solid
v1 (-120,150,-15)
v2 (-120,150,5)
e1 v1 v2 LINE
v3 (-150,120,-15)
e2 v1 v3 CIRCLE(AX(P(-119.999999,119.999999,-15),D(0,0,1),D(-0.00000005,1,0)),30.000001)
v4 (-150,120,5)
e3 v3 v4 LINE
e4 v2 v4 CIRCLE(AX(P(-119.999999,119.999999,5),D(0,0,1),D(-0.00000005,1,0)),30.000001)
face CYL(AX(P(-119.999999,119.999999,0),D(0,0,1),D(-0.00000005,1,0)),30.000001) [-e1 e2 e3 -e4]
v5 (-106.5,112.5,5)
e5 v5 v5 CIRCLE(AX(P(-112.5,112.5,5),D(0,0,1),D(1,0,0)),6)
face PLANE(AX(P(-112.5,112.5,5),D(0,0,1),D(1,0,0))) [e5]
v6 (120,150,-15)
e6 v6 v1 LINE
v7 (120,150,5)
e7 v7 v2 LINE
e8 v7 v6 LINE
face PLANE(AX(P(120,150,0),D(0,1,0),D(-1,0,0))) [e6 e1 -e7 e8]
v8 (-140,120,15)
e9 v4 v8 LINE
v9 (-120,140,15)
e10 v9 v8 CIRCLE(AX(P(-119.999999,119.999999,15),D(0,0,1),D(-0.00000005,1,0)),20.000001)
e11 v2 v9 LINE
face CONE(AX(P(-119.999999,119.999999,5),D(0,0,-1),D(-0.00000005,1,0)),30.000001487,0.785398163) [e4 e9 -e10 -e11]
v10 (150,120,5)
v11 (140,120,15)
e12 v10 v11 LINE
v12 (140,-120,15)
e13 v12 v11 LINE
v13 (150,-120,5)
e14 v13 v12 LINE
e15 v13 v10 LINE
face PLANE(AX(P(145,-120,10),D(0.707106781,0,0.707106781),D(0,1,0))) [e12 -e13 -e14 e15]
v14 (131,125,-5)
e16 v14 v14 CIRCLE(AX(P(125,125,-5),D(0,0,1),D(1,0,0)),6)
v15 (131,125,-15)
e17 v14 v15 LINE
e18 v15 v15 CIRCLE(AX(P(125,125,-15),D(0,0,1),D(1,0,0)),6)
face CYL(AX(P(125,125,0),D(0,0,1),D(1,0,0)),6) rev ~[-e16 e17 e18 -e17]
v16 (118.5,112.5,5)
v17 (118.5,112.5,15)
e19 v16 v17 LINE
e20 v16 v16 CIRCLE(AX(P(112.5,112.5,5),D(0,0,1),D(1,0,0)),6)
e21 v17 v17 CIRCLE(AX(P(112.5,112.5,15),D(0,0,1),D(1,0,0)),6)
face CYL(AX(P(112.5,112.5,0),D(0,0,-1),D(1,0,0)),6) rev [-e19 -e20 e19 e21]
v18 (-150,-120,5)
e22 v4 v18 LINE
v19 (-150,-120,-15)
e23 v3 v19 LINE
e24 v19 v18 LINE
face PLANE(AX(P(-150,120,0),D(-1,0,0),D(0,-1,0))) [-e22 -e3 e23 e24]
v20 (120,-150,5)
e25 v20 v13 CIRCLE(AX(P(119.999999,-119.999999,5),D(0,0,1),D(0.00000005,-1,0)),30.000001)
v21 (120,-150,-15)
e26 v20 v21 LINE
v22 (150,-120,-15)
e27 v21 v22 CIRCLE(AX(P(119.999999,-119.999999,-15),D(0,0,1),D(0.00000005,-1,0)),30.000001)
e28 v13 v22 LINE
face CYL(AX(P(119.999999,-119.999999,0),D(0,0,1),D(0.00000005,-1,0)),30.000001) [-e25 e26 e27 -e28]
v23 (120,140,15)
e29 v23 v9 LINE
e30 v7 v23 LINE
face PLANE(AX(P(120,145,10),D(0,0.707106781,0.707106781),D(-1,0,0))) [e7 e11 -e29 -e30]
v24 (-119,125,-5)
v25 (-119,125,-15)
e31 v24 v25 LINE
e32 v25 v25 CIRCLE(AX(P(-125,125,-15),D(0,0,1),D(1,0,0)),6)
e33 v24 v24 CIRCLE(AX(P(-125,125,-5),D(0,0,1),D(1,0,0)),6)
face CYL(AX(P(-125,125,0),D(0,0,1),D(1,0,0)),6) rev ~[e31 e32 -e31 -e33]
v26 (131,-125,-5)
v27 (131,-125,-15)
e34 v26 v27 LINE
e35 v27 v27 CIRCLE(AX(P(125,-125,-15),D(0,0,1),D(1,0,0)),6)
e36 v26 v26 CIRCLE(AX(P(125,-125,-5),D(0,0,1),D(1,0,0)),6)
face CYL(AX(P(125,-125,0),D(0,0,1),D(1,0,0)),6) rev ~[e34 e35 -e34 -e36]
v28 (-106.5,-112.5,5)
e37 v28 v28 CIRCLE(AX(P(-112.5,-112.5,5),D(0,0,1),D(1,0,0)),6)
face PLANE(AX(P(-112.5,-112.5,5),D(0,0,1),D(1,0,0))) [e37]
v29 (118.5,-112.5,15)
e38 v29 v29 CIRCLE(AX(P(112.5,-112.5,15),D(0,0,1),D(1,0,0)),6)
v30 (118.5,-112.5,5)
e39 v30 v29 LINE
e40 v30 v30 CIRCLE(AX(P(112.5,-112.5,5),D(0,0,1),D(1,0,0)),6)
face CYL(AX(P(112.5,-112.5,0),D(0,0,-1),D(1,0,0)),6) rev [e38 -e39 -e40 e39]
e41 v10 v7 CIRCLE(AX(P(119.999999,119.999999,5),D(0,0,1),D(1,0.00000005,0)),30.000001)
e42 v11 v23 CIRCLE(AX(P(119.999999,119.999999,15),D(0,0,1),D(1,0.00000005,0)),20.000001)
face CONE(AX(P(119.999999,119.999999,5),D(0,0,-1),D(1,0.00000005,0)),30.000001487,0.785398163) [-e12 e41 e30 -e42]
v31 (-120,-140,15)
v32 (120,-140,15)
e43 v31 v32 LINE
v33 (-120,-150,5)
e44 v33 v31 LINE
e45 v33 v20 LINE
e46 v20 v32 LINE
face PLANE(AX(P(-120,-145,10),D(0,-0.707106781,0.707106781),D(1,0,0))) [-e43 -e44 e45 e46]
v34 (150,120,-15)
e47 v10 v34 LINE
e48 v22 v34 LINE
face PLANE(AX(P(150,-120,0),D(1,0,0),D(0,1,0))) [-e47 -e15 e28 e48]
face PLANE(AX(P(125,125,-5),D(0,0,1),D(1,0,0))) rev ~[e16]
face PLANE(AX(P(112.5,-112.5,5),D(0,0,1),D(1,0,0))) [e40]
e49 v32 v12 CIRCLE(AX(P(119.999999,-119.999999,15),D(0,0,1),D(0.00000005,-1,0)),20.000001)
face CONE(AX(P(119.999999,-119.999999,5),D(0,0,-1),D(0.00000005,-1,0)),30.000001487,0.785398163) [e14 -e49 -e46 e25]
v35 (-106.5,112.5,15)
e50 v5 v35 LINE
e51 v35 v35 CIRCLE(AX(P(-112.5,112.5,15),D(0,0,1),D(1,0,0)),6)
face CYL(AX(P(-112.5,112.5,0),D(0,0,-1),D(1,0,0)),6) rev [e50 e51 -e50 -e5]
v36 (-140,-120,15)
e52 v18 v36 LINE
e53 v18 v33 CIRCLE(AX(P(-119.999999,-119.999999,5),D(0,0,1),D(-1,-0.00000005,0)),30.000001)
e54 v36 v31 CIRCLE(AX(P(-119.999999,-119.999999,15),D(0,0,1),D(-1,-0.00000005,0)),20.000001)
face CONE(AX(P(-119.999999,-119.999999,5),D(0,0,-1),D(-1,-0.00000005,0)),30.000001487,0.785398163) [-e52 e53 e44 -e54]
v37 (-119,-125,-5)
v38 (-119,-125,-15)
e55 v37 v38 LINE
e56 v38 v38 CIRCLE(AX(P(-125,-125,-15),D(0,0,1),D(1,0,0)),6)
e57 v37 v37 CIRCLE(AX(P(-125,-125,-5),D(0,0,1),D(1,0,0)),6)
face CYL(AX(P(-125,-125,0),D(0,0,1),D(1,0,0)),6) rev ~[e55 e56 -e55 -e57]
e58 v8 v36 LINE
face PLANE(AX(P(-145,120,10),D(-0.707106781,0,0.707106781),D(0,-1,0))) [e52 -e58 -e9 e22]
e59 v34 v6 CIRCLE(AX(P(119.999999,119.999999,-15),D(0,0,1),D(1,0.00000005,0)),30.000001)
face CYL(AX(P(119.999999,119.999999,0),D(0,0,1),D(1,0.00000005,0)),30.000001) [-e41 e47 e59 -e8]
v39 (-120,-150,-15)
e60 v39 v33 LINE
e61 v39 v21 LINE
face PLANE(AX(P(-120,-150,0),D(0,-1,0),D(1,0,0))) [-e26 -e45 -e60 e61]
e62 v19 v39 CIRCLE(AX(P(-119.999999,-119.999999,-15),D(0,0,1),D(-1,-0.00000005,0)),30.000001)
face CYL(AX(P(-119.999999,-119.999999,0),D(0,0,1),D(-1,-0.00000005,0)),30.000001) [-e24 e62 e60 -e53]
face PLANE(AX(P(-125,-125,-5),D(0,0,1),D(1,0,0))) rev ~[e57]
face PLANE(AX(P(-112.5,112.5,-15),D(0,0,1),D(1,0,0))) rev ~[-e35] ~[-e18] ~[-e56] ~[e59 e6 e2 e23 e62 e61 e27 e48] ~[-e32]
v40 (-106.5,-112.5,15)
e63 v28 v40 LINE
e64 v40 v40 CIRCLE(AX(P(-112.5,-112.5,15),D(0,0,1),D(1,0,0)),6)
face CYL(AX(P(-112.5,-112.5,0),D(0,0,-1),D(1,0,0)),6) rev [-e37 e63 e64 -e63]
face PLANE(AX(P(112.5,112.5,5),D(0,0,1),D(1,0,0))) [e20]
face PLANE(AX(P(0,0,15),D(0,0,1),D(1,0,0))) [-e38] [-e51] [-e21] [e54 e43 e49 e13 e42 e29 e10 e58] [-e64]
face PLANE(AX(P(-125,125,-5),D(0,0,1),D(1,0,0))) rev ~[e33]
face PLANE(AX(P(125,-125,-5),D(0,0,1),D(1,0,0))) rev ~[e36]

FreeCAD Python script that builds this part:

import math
import FreeCAD as App
import Part
import Sketcher
Q = App.Units.Quantity


def edges_at(feature, points):
    """Names of the edges that pass closest to the given points."""
    edges = feature.Shape.Edges
    near = lambda p: min(range(len(edges)), key=lambda i: edges[i].distToShape(Part.Vertex(*p))[0])
    return sorted({f"Edge{near(p) + 1}" for p in points})

doc = App.newDocument("Part")
body = doc.addObject("PartDesign::Body", "Body")

# Sketch on XY plane
sketch1 = body.newObject("Sketcher::SketchObject", "Sketch")
sketch1.AttachmentSupport = (doc.getObject("XY_Plane"), [""])
sketch1.MapMode = "FlatFace"
sketch1.addGeometry(Part.LineSegment(App.Vector(120, 150, 0), App.Vector(-120, 150, 0)), False)
sketch1.addGeometry(Part.ArcOfCircle(Part.Circle(App.Vector(-120, 120, 0), App.Vector(0, 0, 1), 30), math.radians(90), math.radians(180)), False)
sketch1.addGeometry(Part.LineSegment(App.Vector(-150, 120, 0), App.Vector(-150, -120, 0)), False)
sketch1.addGeometry(Part.ArcOfCircle(Part.Circle(App.Vector(-120, -120, 0), App.Vector(0, 0, 1), 30), math.radians(-180), math.radians(-90)), False)
sketch1.addGeometry(Part.LineSegment(App.Vector(-120, -150, 0), App.Vector(120, -150, 0)), False)
sketch1.addGeometry(Part.ArcOfCircle(Part.Circle(App.Vector(120, -120, 0), App.Vector(0, 0, 1), 30), math.radians(-90), math.radians(0)), False)
sketch1.addGeometry(Part.LineSegment(App.Vector(150, -120, 0), App.Vector(150, 120, 0)), False)
sketch1.addGeometry(Part.ArcOfCircle(Part.Circle(App.Vector(120, 120, 0), App.Vector(0, 0, 1), 30), math.radians(0), math.radians(90)), False)
sketch1.addGeometry(Part.Circle(App.Vector(-125, -125, 0), App.Vector(0, 0, 1), 6), False)
sketch1.addGeometry(Part.Circle(App.Vector(-112, -112, 0), App.Vector(0, 0, 1), 6), False)
sketch1.addGeometry(Part.Circle(App.Vector(125, -125, 0), App.Vector(0, 0, 1), 6), False)
sketch1.addGeometry(Part.Circle(App.Vector(112, -112, 0), App.Vector(0, 0, 1), 6), False)
sketch1.addGeometry(Part.Circle(App.Vector(-112, 112, 0), App.Vector(0, 0, 1), 6), False)
sketch1.addGeometry(Part.Circle(App.Vector(-125, 125, 0), App.Vector(0, 0, 1), 6), False)
sketch1.addGeometry(Part.Circle(App.Vector(112, 112, 0), App.Vector(0, 0, 1), 6), False)
sketch1.addGeometry(Part.Circle(App.Vector(125, 125, 0), App.Vector(0, 0, 1), 6), False)
sketch1.addConstraint(Sketcher.Constraint("Tangent", 0, 2, 1, 1))
sketch1.addConstraint(Sketcher.Constraint("Tangent", 1, 2, 2, 1))
sketch1.addConstraint(Sketcher.Constraint("Tangent", 2, 2, 3, 1))
sketch1.addConstraint(Sketcher.Constraint("Tangent", 3, 2, 4, 1))
sketch1.addConstraint(Sketcher.Constraint("Tangent", 4, 2, 5, 1))
sketch1.addConstraint(Sketcher.Constraint("Tangent", 5, 2, 6, 1))
sketch1.addConstraint(Sketcher.Constraint("Tangent", 6, 2, 7, 1))
sketch1.addConstraint(Sketcher.Constraint("Tangent", 7, 2, 0, 1))
sketch1.addConstraint(Sketcher.Constraint("Horizontal", 0))
sketch1.addConstraint(Sketcher.Constraint("Vertical", 2))
sketch1.addConstraint(Sketcher.Constraint("Horizontal", 4))
sketch1.addConstraint(Sketcher.Constraint("Vertical", 6))
sketch1.addConstraint(Sketcher.Constraint("Equal", 1, 3))
sketch1.addConstraint(Sketcher.Constraint("Equal", 3, 5))
sketch1.addConstraint(Sketcher.Constraint("Equal", 5, 7))
sketch1.addConstraint(Sketcher.Constraint("Equal", 8, 9))
sketch1.addConstraint(Sketcher.Constraint("Equal", 9, 10))
sketch1.addConstraint(Sketcher.Constraint("Equal", 10, 11))
sketch1.addConstraint(Sketcher.Constraint("Equal", 11, 12))
sketch1.addConstraint(Sketcher.Constraint("Equal", 12, 13))
sketch1.addConstraint(Sketcher.Constraint("Equal", 13, 14))
sketch1.addConstraint(Sketcher.Constraint("Equal", 14, 15))
sketch1.addConstraint(Sketcher.Constraint("Symmetric", 1, 3, 5, 3, -1, 1))
sketch1.addConstraint(Sketcher.Constraint("Symmetric", 11, 3, 12, 3, -1, 1))
sketch1.addConstraint(Sketcher.Constraint("Symmetric", 10, 3, 13, 3, -1, 1))
sketch1.addConstraint(Sketcher.Constraint("Symmetric", 9, 3, 14, 3, -1, 1))
sketch1.addConstraint(Sketcher.Constraint("Symmetric", 8, 3, 15, 3, -1, 1))
sketch1.addConstraint(Sketcher.Constraint("Symmetric", 8, 3, 10, 3, -2))
sketch1.addConstraint(Sketcher.Constraint("Symmetric", 9, 3, 11, 3, -2))
sketch1.addConstraint(Sketcher.Constraint("Equal", 4, 2))
sketch1.addConstraint(Sketcher.Constraint("Diameter", 8, Q("12 mm")))
sketch1.addConstraint(Sketcher.Constraint("Radius", 1, Q("30.000001 mm")))
sketch1.addConstraint(Sketcher.Constraint("DistanceX", 0, 2, 0, 1, Q("240 mm")))
sketch1.addConstraint(Sketcher.Constraint("DistanceX", 8, 3, -1, 1, Q("125 mm")))
sketch1.addConstraint(Sketcher.Constraint("DistanceY", 8, 3, -1, 1, Q("125 mm")))
sketch1.addConstraint(Sketcher.Constraint("DistanceX", 9, 3, 11, 3, Q("225 mm")))
sketch1.addConstraint(Sketcher.Constraint("DistanceY", 9, 3, 12, 3, Q("225 mm")))
pad1 = body.newObject("PartDesign::Pad", "Pad")
pad1.Profile = sketch1
pad1.Type = "TwoLengths"
pad1.Length = 15
pad1.Length2 = 15
doc.recompute()

chamfer = body.newObject("PartDesign::Chamfer", "Chamfer")
chamfer.Base = (pad1, edges_at(pad1, [
    (0, 150, 15),
    (-141.213, 141.213, 15),
    (-150, 0, 15),
    (0, -150, 15),
    (-141.213, -141.213, 15),
    (141.213, -141.213, 15),
    (150, 0, 15),
    (141.213, 141.213, 15),
]))
chamfer.Size = 10

# Sketch on XY plane
sketch2 = body.newObject("Sketcher::SketchObject", "Sketch001")
sketch2.AttachmentSupport = (doc.getObject("XY_Plane"), [""])
sketch2.MapMode = "FlatFace"
sketch2.addGeometry(Part.Circle(App.Vector(-112, 112, 0), App.Vector(0, 0, 1), 6), False)
sketch2.addGeometry(Part.Circle(App.Vector(112, 112, 0), App.Vector(0, 0, 1), 6), False)
sketch2.addGeometry(Part.Circle(App.Vector(112, -112, 0), App.Vector(0, 0, 1), 6), False)
sketch2.addGeometry(Part.Circle(App.Vector(-112, -112, 0), App.Vector(0, 0, 1), 6), False)
sketch2.addConstraint(Sketcher.Constraint("Equal", 0, 1))
sketch2.addConstraint(Sketcher.Constraint("Equal", 1, 2))
sketch2.addConstraint(Sketcher.Constraint("Equal", 2, 3))
sketch2.addConstraint(Sketcher.Constraint("Symmetric", 0, 3, 2, 3, -1, 1))
sketch2.addConstraint(Sketcher.Constraint("Symmetric", 1, 3, 3, 3, -1, 1))
sketch2.addConstraint(Sketcher.Constraint("Symmetric", 0, 3, 1, 3, -2))
sketch2.addConstraint(Sketcher.Constraint("Diameter", 0, Q("12 mm")))
sketch2.addConstraint(Sketcher.Constraint("DistanceX", 0, 3, 1, 3, Q("225 mm")))
sketch2.addConstraint(Sketcher.Constraint("DistanceY", 2, 3, 1, 3, Q("225 mm")))
pad2 = body.newObject("PartDesign::Pad", "Pad001")
pad2.Profile = sketch2
pad2.Type = "TwoLengths"
pad2.Length = 5
pad2.Length2 = 15

# Sketch on XY plane
sketch3 = body.newObject("Sketcher::SketchObject", "Sketch002")
sketch3.AttachmentSupport = (doc.getObject("XY_Plane"), [""])
sketch3.MapMode = "FlatFace"
sketch3.addGeometry(Part.Circle(App.Vector(125, 125, 0), App.Vector(0, 0, 1), 6), False)
sketch3.addGeometry(Part.Circle(App.Vector(-125, 125, 0), App.Vector(0, 0, 1), 6), False)
sketch3.addGeometry(Part.Circle(App.Vector(-125, -125, 0), App.Vector(0, 0, 1), 6), False)
sketch3.addGeometry(Part.Circle(App.Vector(125, -125, 0), App.Vector(0, 0, 1), 6), False)
sketch3.addConstraint(Sketcher.Constraint("Equal", 0, 1))
sketch3.addConstraint(Sketcher.Constraint("Equal", 1, 2))
sketch3.addConstraint(Sketcher.Constraint("Equal", 2, 3))
sketch3.addConstraint(Sketcher.Constraint("Symmetric", 0, 3, 2, 3, -1, 1))
sketch3.addConstraint(Sketcher.Constraint("Symmetric", 1, 3, 3, 3, -1, 1))
sketch3.addConstraint(Sketcher.Constraint("Symmetric", 0, 3, 1, 3, -2))
sketch3.addConstraint(Sketcher.Constraint("Diameter", 0, Q("12 mm")))
sketch3.addConstraint(Sketcher.Constraint("DistanceX", -1, 1, 0, 3, Q("125 mm")))
sketch3.addConstraint(Sketcher.Constraint("DistanceY", -1, 1, 0, 3, Q("125 mm")))
pad3 = body.newObject("PartDesign::Pad", "Pad002")
pad3.Profile = sketch3
pad3.Type = "TwoLengths"
pad3.Length = 15
pad3.Length2 = 5

doc.recompute()
